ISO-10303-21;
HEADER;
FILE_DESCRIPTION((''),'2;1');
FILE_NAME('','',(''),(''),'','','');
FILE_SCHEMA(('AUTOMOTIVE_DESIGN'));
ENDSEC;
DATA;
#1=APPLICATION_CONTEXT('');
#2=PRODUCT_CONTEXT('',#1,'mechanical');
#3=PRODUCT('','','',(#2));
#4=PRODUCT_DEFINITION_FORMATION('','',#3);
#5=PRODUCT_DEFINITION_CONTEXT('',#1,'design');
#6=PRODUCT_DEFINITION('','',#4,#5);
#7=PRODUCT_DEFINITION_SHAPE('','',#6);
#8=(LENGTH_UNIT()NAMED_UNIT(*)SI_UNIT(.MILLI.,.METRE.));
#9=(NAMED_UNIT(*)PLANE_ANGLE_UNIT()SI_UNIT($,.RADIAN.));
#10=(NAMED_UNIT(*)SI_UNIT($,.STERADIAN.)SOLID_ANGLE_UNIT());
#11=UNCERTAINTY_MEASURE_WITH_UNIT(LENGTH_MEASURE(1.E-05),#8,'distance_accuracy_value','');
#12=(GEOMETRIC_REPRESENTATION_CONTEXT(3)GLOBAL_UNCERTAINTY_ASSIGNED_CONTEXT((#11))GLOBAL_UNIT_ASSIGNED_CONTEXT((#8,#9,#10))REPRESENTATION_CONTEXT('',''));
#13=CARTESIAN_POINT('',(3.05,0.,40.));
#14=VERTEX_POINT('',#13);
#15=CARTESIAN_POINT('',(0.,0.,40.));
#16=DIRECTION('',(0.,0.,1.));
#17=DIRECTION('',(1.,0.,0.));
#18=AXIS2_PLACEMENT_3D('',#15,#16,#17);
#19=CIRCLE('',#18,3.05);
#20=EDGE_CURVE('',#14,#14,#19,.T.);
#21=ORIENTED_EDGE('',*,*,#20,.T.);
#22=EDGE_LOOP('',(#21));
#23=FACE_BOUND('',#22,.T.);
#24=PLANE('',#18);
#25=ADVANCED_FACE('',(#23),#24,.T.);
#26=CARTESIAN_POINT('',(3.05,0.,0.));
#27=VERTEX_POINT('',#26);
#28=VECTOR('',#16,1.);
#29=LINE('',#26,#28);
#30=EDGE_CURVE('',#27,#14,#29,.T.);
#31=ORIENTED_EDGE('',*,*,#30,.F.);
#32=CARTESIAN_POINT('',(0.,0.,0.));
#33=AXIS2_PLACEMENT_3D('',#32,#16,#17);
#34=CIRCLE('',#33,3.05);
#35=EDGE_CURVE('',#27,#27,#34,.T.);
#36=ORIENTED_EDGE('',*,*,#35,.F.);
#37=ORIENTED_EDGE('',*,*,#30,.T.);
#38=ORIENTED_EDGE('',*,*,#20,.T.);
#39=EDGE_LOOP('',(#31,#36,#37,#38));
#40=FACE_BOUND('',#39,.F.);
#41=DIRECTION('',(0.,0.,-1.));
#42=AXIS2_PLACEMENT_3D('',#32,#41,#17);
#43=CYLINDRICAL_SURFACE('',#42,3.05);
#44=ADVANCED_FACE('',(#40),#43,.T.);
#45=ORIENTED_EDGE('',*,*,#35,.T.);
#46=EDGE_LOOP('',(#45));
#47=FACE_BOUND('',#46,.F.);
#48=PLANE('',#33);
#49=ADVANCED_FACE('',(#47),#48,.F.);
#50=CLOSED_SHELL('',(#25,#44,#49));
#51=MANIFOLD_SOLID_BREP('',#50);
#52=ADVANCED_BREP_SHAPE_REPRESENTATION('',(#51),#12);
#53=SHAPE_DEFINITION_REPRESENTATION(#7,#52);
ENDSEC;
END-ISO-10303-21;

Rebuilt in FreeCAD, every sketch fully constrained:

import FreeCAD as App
import Part
import Sketcher
Q = App.Units.Quantity

doc = App.newDocument("Part")
body = doc.addObject("PartDesign::Body", "Body")

sketch1 = body.newObject("Sketcher::SketchObject", "Sketch")
sketch1.AttachmentSupport = (doc.getObject("XY_Plane"), [""])
sketch1.MapMode = "FlatFace"
sketch1.addGeometry(Part.Circle(App.Vector(0, 0, 0), App.Vector(0, 0, 1), 3.05), False)
sketch1.addConstraint([
    Sketcher.Constraint("Coincident", 0, 3, -1, 1),
    Sketcher.Constraint("Diameter", 0, Q("6.1 mm")),
])
pad1 = body.newObject("PartDesign::Pad", "Pad")
pad1.Profile = sketch1
pad1.Length = 40

doc.recompute()
